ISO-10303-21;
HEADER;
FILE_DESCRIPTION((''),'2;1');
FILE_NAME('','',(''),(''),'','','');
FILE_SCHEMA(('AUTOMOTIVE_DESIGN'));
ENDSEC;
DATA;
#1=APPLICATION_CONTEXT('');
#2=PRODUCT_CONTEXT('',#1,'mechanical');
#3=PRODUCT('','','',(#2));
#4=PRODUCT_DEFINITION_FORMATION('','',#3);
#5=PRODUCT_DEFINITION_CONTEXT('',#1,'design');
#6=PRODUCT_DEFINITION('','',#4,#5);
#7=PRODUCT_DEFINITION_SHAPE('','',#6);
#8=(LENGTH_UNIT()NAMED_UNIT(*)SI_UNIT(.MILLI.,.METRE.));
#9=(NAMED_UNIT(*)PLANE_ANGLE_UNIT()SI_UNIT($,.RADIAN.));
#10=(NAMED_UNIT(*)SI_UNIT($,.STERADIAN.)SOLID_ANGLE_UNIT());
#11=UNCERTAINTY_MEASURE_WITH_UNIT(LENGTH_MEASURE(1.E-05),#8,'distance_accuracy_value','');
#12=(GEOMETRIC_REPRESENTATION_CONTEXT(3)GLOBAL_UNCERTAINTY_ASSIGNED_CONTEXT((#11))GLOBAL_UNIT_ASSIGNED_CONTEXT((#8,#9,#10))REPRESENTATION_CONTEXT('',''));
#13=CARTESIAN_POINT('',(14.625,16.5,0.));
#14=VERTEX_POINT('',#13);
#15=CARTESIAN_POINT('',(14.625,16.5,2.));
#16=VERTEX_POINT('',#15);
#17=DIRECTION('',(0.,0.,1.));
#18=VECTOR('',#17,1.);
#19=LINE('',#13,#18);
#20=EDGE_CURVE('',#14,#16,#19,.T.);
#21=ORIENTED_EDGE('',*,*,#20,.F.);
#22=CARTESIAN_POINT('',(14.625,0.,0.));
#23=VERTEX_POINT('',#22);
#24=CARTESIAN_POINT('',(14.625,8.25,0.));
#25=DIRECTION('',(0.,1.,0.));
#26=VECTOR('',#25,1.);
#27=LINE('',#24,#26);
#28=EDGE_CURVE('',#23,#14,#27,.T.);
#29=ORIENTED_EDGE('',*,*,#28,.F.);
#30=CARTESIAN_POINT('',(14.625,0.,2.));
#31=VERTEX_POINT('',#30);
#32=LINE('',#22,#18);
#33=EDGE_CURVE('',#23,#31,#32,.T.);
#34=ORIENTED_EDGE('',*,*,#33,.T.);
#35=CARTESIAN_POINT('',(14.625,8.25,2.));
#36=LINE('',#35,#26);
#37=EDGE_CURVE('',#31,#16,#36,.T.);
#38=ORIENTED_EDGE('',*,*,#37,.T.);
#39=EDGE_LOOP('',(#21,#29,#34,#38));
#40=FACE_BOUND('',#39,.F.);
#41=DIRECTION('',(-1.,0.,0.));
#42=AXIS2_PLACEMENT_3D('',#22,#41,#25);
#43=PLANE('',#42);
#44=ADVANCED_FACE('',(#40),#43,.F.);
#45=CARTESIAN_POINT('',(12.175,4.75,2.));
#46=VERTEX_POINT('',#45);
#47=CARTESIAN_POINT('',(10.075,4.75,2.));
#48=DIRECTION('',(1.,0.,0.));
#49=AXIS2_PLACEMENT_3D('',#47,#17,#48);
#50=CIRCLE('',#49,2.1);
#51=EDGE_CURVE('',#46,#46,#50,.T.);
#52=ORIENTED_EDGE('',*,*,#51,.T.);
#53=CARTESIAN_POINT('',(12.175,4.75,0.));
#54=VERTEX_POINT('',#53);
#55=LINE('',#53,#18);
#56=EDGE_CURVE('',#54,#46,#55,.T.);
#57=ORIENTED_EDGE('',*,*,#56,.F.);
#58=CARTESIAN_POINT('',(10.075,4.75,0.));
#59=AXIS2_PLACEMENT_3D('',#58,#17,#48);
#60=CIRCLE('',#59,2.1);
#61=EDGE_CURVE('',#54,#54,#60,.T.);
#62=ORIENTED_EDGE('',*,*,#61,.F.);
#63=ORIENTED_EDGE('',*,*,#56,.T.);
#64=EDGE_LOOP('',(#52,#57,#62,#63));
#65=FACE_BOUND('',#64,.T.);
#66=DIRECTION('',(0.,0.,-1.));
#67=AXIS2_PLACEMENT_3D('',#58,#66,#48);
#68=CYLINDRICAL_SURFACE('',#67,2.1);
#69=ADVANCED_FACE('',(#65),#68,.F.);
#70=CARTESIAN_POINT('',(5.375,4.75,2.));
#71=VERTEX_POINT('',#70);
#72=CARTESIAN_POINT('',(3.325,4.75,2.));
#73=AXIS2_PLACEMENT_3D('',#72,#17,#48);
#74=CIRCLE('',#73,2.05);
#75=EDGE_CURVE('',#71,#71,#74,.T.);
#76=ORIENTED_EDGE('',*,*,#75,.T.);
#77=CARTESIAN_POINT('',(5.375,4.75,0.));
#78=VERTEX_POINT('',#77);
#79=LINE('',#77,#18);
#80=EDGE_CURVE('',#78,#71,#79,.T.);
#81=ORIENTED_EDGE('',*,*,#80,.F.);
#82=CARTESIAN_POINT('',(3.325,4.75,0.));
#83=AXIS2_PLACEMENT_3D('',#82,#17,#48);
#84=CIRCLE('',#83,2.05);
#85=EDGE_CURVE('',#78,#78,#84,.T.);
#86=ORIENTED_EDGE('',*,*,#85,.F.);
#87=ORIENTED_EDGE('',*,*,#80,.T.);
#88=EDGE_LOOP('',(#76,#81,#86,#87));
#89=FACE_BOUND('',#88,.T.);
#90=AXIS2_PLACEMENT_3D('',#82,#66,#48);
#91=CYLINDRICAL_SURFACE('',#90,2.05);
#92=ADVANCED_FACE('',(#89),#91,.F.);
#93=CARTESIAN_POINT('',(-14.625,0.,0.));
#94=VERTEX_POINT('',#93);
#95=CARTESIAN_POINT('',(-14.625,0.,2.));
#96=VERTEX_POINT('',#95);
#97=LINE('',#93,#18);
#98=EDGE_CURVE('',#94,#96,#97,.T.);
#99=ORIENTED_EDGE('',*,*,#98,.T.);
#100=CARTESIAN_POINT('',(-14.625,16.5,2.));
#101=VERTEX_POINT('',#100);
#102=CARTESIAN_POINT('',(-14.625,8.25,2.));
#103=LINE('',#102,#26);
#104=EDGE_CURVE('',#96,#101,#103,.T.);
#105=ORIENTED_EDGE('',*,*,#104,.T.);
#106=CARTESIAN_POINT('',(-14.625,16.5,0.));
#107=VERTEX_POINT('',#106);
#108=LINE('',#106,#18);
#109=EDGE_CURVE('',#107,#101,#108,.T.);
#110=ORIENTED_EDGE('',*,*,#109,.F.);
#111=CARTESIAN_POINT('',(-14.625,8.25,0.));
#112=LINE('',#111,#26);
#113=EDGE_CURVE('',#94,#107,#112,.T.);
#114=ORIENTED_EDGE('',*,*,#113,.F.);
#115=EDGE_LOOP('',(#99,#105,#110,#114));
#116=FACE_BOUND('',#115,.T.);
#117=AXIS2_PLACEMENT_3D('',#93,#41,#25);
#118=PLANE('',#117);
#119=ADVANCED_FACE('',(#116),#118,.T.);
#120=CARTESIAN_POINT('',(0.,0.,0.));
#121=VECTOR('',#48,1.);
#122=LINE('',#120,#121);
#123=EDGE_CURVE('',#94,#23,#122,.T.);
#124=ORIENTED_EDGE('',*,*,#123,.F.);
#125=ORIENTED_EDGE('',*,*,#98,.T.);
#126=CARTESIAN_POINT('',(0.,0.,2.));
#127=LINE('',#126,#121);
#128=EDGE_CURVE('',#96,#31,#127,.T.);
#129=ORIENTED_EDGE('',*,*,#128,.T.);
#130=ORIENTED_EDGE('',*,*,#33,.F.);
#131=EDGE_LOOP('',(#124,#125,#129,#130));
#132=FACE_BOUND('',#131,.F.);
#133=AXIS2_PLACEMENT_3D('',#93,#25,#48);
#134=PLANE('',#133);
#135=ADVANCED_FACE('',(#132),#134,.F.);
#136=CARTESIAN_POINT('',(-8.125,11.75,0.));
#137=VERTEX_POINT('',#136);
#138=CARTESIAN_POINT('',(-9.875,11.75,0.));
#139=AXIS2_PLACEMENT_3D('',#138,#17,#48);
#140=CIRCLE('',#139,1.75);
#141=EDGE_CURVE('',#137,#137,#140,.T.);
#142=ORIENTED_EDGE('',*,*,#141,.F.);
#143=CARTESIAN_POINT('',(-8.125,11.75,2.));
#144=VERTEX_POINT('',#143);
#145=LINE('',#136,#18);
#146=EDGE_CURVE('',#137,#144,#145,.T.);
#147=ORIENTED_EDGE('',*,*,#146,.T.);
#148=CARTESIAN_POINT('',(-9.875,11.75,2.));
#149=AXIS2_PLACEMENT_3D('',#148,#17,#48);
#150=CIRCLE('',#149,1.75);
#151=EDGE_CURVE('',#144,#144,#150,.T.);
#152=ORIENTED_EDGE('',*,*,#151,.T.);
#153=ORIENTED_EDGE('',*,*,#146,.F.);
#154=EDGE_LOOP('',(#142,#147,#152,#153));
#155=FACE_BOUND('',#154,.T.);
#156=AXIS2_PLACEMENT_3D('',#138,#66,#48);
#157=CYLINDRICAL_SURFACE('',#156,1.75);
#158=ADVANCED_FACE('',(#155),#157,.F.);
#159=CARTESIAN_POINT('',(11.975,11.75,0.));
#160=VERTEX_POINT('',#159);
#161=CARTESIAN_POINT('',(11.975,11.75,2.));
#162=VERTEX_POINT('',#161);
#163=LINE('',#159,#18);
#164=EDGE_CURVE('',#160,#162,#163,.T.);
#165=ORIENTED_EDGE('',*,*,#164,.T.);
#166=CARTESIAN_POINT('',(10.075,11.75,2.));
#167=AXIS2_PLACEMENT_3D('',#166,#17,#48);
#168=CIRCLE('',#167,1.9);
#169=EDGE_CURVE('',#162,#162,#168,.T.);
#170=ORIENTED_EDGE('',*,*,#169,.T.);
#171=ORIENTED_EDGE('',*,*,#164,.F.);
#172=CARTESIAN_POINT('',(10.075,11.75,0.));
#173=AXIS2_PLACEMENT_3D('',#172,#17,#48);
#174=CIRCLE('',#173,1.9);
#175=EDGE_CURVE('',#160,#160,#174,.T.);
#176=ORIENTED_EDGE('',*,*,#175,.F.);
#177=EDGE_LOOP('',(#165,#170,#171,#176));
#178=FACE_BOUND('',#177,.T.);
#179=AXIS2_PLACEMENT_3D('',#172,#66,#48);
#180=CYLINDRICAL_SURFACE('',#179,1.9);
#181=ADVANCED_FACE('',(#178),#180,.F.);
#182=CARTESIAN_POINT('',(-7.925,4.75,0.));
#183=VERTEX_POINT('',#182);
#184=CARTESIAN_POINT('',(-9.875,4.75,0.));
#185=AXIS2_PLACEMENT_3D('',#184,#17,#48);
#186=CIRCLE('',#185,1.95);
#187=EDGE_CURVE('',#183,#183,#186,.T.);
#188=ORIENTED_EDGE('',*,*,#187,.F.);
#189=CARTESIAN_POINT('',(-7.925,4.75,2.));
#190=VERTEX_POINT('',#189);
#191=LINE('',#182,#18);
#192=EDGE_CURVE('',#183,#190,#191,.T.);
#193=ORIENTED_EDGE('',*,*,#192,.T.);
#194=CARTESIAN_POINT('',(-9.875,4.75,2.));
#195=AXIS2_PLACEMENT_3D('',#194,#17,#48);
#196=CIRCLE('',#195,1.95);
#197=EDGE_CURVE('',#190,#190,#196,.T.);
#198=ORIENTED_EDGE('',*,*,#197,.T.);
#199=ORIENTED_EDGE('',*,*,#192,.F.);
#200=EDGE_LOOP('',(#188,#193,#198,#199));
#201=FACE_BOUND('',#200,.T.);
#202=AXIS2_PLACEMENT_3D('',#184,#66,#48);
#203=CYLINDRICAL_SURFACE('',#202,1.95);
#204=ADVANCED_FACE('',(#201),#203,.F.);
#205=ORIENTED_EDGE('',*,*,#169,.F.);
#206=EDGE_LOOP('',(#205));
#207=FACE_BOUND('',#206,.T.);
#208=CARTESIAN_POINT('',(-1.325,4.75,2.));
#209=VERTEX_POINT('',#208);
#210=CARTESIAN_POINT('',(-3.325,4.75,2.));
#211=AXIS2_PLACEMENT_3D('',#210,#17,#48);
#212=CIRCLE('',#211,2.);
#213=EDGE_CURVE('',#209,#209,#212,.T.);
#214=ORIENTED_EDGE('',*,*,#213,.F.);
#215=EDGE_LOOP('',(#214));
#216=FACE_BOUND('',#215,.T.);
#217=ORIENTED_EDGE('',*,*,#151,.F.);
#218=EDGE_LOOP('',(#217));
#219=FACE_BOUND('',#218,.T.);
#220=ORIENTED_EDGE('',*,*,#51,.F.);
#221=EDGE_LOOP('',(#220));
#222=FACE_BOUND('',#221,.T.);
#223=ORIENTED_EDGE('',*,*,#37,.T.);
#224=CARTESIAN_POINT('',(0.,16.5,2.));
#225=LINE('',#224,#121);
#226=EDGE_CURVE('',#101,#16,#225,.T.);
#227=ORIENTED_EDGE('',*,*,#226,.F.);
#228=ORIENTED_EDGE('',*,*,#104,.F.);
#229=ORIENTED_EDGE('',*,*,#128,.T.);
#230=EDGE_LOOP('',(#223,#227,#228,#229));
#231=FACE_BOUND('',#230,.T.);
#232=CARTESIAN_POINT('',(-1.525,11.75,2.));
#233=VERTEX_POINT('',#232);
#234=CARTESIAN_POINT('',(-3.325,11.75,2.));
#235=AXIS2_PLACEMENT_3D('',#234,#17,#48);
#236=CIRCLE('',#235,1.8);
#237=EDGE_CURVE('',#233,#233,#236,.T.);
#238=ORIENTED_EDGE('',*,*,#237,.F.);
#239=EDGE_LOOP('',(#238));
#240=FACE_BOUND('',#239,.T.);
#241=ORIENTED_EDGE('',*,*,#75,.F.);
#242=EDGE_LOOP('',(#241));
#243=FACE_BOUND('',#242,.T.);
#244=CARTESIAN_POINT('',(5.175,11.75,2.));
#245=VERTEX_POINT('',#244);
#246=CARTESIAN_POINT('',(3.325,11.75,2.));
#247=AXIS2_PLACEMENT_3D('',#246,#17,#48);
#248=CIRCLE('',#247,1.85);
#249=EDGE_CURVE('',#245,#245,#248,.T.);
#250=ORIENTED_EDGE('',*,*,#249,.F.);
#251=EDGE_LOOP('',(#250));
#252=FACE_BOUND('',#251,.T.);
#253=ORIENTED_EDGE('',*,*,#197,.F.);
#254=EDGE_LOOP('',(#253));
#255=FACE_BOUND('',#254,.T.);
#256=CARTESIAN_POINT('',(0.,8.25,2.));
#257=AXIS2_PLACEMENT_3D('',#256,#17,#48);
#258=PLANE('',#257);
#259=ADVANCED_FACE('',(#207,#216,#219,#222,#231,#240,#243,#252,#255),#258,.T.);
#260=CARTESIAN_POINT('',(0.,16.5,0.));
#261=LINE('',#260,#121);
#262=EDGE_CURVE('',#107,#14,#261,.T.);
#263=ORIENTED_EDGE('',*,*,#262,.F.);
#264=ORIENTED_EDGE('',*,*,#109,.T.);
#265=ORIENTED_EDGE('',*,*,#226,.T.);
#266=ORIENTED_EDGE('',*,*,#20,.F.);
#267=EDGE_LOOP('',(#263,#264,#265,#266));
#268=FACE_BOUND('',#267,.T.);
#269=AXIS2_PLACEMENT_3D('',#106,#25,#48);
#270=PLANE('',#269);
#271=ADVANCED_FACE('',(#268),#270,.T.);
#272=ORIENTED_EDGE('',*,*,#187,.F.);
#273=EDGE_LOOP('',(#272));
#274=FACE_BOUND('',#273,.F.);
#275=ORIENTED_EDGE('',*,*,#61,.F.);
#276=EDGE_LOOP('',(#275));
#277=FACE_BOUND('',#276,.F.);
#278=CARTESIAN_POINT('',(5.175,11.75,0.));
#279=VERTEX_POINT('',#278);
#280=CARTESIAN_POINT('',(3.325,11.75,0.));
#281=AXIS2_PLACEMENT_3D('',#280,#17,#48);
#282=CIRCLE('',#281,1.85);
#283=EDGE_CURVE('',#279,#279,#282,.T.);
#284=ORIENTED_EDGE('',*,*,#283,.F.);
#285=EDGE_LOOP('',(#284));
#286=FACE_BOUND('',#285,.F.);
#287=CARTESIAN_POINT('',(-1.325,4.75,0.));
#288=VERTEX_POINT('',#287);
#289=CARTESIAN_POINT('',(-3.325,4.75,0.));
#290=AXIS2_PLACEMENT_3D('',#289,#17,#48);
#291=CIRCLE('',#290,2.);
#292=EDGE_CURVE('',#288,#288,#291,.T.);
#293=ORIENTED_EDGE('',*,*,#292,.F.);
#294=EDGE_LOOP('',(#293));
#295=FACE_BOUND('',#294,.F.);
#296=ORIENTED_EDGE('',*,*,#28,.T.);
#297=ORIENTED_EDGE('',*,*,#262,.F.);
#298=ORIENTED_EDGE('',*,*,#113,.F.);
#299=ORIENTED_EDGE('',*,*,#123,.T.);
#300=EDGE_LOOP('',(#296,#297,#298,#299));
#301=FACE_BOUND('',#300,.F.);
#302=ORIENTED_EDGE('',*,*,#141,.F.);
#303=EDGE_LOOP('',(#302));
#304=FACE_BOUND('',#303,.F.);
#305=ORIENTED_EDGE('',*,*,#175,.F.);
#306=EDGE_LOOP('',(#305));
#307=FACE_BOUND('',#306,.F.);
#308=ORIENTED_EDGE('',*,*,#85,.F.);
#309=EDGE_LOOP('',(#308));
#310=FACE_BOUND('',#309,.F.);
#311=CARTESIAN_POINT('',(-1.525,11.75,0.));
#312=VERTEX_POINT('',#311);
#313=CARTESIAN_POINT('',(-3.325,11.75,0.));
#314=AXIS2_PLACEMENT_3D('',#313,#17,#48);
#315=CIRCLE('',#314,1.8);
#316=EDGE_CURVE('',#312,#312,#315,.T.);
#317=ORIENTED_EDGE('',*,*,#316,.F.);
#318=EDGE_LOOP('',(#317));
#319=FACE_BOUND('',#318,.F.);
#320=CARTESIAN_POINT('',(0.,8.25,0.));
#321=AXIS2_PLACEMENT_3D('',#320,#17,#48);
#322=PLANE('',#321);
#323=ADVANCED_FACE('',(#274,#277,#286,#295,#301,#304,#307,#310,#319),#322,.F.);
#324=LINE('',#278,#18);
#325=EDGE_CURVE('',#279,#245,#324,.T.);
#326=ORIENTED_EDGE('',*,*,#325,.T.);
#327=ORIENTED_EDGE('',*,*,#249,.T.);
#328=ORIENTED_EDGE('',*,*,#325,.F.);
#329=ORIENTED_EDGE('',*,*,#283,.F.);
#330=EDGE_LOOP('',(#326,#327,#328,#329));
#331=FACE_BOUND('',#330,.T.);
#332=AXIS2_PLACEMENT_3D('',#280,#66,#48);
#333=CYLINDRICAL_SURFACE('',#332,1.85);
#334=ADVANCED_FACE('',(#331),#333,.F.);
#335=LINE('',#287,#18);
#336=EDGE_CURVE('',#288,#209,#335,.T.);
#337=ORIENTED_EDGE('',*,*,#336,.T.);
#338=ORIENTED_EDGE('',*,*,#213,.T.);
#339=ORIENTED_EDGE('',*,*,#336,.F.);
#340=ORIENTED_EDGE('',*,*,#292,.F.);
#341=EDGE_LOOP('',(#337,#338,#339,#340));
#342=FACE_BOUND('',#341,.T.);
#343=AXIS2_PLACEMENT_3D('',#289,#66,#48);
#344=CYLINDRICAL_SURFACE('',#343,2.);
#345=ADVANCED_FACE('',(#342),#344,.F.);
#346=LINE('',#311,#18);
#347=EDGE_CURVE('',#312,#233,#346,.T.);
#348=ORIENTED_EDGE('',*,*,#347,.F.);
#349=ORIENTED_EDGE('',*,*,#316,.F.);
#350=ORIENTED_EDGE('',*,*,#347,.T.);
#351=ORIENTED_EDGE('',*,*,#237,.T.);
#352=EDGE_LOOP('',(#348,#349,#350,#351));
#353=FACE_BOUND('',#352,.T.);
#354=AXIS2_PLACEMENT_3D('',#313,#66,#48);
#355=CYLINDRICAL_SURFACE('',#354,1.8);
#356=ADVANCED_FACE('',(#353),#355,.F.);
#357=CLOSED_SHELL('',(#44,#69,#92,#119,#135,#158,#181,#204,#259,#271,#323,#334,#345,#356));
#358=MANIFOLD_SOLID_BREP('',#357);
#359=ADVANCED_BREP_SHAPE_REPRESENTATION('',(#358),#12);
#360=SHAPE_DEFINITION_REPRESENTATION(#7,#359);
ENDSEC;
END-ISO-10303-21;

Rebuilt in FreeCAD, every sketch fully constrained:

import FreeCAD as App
import Part
import Sketcher

V = App.Vector
Q = App.Units.Quantity


def add_polygon(sketch, points):
    """Adds a closed chain of lines whose ends are joined by coincident constraints."""
    first, n = sketch.GeometryCount, len(points)
    for a, b in zip(points, points[1:] + points[:1]):
        sketch.addGeometry(Part.LineSegment(App.Vector(*a, 0), App.Vector(*b, 0)), False)
    for i in range(n):
        sketch.addConstraint(Sketcher.Constraint("Coincident", first + i, 2, first + (i + 1) % n, 1))

doc = App.newDocument("Part")
body = doc.addObject("PartDesign::Body", "Body")

# Sketch on XY plane
sketch1 = body.newObject("Sketcher::SketchObject", "Sketch")
sketch1.AttachmentSupport = (doc.getObject("XY_Plane"), [""])
sketch1.MapMode = "FlatFace"
add_polygon(sketch1, [(-14.6, 16.5), (-14.6, 0), (14.6, 0), (14.6, 16.5)])  # lines 0-3
sketch1.addGeometry(Part.Circle(V(-9.9, 4.8, 0), V(0, 0, 1), 1.9), False)  # 4
sketch1.addGeometry(Part.Circle(V(-3.3, 4.8, 0), V(0, 0, 1), 2), False)  # 5
sketch1.addGeometry(Part.Circle(V(3.3, 4.8, 0), V(0, 0, 1), 2), False)  # 6
sketch1.addGeometry(Part.Circle(V(10.1, 4.8, 0), V(0, 0, 1), 2.1), False)  # 7
sketch1.addGeometry(Part.Circle(V(-9.9, 11.8, 0), V(0, 0, 1), 1.8), False)  # 8
sketch1.addGeometry(Part.Circle(V(-3.3, 11.8, 0), V(0, 0, 1), 1.8), False)  # 9
sketch1.addGeometry(Part.Circle(V(3.3, 11.8, 0), V(0, 0, 1), 1.9), False)  # 10
sketch1.addGeometry(Part.Circle(V(10.1, 11.8, 0), V(0, 0, 1), 1.9), False)  # 11
sketch1.addConstraint([
    Sketcher.Constraint("Vertical", 0),
    Sketcher.Constraint("Horizontal", 1),
    Sketcher.Constraint("Vertical", 2),
    Sketcher.Constraint("Horizontal", 3),
    Sketcher.Constraint("Symmetric", 0, 2, 1, 2, -1, 1),
    Sketcher.Constraint("Symmetric", 5, 3, 6, 3, -2),
    Sketcher.Constraint("Symmetric", 9, 3, 10, 3, -2),
    Sketcher.Constraint("Horizontal", 4, 3, 5, 3),
    Sketcher.Constraint("Horizontal", 6, 3, 7, 3),
    Sketcher.Constraint("Horizontal", 8, 3, 9, 3),
    Sketcher.Constraint("Horizontal", 10, 3, 11, 3),
    Sketcher.Constraint("Vertical", 4, 3, 8, 3),
    Sketcher.Constraint("Vertical", 5, 3, 9, 3),
    Sketcher.Constraint("Vertical", 7, 3, 11, 3),
    Sketcher.Constraint("Diameter", 5, Q("4 mm")),
    Sketcher.Constraint("Diameter", 4, Q("3.9 mm")),
    Sketcher.Constraint("Diameter", 6, Q("4.1 mm")),
    Sketcher.Constraint("Diameter", 7, Q("4.2 mm")),
    Sketcher.Constraint("Diameter", 8, Q("3.5 mm")),
    Sketcher.Constraint("Diameter", 9, Q("3.6 mm")),
    Sketcher.Constraint("Diameter", 10, Q("3.7 mm")),
    Sketcher.Constraint("Diameter", 11, Q("3.8 mm")),
    Sketcher.Constraint("DistanceY", 0, 2, 0, 1, Q("16.5 mm")),
    Sketcher.Constraint("DistanceY", 4, 3, 8, 3, Q("7 mm")),
    Sketcher.Constraint("DistanceX", 1, 1, 1, 2, Q("29.25 mm")),
    Sketcher.Constraint("DistanceX", 4, 3, 6, 3, Q("13.2 mm")),
    Sketcher.Constraint("DistanceX", 5, 3, 7, 3, Q("13.4 mm")),
    Sketcher.Constraint("DistanceX", 0, 2, 5, 3, Q("11.3 mm")),
    Sketcher.Constraint("DistanceY", -1, 1, 4, 3, Q("4.75 mm")),
])
pad1 = body.newObject("PartDesign::Pad", "Pad")
pad1.Profile = sketch1
pad1.Length = 2

doc.recompute()
